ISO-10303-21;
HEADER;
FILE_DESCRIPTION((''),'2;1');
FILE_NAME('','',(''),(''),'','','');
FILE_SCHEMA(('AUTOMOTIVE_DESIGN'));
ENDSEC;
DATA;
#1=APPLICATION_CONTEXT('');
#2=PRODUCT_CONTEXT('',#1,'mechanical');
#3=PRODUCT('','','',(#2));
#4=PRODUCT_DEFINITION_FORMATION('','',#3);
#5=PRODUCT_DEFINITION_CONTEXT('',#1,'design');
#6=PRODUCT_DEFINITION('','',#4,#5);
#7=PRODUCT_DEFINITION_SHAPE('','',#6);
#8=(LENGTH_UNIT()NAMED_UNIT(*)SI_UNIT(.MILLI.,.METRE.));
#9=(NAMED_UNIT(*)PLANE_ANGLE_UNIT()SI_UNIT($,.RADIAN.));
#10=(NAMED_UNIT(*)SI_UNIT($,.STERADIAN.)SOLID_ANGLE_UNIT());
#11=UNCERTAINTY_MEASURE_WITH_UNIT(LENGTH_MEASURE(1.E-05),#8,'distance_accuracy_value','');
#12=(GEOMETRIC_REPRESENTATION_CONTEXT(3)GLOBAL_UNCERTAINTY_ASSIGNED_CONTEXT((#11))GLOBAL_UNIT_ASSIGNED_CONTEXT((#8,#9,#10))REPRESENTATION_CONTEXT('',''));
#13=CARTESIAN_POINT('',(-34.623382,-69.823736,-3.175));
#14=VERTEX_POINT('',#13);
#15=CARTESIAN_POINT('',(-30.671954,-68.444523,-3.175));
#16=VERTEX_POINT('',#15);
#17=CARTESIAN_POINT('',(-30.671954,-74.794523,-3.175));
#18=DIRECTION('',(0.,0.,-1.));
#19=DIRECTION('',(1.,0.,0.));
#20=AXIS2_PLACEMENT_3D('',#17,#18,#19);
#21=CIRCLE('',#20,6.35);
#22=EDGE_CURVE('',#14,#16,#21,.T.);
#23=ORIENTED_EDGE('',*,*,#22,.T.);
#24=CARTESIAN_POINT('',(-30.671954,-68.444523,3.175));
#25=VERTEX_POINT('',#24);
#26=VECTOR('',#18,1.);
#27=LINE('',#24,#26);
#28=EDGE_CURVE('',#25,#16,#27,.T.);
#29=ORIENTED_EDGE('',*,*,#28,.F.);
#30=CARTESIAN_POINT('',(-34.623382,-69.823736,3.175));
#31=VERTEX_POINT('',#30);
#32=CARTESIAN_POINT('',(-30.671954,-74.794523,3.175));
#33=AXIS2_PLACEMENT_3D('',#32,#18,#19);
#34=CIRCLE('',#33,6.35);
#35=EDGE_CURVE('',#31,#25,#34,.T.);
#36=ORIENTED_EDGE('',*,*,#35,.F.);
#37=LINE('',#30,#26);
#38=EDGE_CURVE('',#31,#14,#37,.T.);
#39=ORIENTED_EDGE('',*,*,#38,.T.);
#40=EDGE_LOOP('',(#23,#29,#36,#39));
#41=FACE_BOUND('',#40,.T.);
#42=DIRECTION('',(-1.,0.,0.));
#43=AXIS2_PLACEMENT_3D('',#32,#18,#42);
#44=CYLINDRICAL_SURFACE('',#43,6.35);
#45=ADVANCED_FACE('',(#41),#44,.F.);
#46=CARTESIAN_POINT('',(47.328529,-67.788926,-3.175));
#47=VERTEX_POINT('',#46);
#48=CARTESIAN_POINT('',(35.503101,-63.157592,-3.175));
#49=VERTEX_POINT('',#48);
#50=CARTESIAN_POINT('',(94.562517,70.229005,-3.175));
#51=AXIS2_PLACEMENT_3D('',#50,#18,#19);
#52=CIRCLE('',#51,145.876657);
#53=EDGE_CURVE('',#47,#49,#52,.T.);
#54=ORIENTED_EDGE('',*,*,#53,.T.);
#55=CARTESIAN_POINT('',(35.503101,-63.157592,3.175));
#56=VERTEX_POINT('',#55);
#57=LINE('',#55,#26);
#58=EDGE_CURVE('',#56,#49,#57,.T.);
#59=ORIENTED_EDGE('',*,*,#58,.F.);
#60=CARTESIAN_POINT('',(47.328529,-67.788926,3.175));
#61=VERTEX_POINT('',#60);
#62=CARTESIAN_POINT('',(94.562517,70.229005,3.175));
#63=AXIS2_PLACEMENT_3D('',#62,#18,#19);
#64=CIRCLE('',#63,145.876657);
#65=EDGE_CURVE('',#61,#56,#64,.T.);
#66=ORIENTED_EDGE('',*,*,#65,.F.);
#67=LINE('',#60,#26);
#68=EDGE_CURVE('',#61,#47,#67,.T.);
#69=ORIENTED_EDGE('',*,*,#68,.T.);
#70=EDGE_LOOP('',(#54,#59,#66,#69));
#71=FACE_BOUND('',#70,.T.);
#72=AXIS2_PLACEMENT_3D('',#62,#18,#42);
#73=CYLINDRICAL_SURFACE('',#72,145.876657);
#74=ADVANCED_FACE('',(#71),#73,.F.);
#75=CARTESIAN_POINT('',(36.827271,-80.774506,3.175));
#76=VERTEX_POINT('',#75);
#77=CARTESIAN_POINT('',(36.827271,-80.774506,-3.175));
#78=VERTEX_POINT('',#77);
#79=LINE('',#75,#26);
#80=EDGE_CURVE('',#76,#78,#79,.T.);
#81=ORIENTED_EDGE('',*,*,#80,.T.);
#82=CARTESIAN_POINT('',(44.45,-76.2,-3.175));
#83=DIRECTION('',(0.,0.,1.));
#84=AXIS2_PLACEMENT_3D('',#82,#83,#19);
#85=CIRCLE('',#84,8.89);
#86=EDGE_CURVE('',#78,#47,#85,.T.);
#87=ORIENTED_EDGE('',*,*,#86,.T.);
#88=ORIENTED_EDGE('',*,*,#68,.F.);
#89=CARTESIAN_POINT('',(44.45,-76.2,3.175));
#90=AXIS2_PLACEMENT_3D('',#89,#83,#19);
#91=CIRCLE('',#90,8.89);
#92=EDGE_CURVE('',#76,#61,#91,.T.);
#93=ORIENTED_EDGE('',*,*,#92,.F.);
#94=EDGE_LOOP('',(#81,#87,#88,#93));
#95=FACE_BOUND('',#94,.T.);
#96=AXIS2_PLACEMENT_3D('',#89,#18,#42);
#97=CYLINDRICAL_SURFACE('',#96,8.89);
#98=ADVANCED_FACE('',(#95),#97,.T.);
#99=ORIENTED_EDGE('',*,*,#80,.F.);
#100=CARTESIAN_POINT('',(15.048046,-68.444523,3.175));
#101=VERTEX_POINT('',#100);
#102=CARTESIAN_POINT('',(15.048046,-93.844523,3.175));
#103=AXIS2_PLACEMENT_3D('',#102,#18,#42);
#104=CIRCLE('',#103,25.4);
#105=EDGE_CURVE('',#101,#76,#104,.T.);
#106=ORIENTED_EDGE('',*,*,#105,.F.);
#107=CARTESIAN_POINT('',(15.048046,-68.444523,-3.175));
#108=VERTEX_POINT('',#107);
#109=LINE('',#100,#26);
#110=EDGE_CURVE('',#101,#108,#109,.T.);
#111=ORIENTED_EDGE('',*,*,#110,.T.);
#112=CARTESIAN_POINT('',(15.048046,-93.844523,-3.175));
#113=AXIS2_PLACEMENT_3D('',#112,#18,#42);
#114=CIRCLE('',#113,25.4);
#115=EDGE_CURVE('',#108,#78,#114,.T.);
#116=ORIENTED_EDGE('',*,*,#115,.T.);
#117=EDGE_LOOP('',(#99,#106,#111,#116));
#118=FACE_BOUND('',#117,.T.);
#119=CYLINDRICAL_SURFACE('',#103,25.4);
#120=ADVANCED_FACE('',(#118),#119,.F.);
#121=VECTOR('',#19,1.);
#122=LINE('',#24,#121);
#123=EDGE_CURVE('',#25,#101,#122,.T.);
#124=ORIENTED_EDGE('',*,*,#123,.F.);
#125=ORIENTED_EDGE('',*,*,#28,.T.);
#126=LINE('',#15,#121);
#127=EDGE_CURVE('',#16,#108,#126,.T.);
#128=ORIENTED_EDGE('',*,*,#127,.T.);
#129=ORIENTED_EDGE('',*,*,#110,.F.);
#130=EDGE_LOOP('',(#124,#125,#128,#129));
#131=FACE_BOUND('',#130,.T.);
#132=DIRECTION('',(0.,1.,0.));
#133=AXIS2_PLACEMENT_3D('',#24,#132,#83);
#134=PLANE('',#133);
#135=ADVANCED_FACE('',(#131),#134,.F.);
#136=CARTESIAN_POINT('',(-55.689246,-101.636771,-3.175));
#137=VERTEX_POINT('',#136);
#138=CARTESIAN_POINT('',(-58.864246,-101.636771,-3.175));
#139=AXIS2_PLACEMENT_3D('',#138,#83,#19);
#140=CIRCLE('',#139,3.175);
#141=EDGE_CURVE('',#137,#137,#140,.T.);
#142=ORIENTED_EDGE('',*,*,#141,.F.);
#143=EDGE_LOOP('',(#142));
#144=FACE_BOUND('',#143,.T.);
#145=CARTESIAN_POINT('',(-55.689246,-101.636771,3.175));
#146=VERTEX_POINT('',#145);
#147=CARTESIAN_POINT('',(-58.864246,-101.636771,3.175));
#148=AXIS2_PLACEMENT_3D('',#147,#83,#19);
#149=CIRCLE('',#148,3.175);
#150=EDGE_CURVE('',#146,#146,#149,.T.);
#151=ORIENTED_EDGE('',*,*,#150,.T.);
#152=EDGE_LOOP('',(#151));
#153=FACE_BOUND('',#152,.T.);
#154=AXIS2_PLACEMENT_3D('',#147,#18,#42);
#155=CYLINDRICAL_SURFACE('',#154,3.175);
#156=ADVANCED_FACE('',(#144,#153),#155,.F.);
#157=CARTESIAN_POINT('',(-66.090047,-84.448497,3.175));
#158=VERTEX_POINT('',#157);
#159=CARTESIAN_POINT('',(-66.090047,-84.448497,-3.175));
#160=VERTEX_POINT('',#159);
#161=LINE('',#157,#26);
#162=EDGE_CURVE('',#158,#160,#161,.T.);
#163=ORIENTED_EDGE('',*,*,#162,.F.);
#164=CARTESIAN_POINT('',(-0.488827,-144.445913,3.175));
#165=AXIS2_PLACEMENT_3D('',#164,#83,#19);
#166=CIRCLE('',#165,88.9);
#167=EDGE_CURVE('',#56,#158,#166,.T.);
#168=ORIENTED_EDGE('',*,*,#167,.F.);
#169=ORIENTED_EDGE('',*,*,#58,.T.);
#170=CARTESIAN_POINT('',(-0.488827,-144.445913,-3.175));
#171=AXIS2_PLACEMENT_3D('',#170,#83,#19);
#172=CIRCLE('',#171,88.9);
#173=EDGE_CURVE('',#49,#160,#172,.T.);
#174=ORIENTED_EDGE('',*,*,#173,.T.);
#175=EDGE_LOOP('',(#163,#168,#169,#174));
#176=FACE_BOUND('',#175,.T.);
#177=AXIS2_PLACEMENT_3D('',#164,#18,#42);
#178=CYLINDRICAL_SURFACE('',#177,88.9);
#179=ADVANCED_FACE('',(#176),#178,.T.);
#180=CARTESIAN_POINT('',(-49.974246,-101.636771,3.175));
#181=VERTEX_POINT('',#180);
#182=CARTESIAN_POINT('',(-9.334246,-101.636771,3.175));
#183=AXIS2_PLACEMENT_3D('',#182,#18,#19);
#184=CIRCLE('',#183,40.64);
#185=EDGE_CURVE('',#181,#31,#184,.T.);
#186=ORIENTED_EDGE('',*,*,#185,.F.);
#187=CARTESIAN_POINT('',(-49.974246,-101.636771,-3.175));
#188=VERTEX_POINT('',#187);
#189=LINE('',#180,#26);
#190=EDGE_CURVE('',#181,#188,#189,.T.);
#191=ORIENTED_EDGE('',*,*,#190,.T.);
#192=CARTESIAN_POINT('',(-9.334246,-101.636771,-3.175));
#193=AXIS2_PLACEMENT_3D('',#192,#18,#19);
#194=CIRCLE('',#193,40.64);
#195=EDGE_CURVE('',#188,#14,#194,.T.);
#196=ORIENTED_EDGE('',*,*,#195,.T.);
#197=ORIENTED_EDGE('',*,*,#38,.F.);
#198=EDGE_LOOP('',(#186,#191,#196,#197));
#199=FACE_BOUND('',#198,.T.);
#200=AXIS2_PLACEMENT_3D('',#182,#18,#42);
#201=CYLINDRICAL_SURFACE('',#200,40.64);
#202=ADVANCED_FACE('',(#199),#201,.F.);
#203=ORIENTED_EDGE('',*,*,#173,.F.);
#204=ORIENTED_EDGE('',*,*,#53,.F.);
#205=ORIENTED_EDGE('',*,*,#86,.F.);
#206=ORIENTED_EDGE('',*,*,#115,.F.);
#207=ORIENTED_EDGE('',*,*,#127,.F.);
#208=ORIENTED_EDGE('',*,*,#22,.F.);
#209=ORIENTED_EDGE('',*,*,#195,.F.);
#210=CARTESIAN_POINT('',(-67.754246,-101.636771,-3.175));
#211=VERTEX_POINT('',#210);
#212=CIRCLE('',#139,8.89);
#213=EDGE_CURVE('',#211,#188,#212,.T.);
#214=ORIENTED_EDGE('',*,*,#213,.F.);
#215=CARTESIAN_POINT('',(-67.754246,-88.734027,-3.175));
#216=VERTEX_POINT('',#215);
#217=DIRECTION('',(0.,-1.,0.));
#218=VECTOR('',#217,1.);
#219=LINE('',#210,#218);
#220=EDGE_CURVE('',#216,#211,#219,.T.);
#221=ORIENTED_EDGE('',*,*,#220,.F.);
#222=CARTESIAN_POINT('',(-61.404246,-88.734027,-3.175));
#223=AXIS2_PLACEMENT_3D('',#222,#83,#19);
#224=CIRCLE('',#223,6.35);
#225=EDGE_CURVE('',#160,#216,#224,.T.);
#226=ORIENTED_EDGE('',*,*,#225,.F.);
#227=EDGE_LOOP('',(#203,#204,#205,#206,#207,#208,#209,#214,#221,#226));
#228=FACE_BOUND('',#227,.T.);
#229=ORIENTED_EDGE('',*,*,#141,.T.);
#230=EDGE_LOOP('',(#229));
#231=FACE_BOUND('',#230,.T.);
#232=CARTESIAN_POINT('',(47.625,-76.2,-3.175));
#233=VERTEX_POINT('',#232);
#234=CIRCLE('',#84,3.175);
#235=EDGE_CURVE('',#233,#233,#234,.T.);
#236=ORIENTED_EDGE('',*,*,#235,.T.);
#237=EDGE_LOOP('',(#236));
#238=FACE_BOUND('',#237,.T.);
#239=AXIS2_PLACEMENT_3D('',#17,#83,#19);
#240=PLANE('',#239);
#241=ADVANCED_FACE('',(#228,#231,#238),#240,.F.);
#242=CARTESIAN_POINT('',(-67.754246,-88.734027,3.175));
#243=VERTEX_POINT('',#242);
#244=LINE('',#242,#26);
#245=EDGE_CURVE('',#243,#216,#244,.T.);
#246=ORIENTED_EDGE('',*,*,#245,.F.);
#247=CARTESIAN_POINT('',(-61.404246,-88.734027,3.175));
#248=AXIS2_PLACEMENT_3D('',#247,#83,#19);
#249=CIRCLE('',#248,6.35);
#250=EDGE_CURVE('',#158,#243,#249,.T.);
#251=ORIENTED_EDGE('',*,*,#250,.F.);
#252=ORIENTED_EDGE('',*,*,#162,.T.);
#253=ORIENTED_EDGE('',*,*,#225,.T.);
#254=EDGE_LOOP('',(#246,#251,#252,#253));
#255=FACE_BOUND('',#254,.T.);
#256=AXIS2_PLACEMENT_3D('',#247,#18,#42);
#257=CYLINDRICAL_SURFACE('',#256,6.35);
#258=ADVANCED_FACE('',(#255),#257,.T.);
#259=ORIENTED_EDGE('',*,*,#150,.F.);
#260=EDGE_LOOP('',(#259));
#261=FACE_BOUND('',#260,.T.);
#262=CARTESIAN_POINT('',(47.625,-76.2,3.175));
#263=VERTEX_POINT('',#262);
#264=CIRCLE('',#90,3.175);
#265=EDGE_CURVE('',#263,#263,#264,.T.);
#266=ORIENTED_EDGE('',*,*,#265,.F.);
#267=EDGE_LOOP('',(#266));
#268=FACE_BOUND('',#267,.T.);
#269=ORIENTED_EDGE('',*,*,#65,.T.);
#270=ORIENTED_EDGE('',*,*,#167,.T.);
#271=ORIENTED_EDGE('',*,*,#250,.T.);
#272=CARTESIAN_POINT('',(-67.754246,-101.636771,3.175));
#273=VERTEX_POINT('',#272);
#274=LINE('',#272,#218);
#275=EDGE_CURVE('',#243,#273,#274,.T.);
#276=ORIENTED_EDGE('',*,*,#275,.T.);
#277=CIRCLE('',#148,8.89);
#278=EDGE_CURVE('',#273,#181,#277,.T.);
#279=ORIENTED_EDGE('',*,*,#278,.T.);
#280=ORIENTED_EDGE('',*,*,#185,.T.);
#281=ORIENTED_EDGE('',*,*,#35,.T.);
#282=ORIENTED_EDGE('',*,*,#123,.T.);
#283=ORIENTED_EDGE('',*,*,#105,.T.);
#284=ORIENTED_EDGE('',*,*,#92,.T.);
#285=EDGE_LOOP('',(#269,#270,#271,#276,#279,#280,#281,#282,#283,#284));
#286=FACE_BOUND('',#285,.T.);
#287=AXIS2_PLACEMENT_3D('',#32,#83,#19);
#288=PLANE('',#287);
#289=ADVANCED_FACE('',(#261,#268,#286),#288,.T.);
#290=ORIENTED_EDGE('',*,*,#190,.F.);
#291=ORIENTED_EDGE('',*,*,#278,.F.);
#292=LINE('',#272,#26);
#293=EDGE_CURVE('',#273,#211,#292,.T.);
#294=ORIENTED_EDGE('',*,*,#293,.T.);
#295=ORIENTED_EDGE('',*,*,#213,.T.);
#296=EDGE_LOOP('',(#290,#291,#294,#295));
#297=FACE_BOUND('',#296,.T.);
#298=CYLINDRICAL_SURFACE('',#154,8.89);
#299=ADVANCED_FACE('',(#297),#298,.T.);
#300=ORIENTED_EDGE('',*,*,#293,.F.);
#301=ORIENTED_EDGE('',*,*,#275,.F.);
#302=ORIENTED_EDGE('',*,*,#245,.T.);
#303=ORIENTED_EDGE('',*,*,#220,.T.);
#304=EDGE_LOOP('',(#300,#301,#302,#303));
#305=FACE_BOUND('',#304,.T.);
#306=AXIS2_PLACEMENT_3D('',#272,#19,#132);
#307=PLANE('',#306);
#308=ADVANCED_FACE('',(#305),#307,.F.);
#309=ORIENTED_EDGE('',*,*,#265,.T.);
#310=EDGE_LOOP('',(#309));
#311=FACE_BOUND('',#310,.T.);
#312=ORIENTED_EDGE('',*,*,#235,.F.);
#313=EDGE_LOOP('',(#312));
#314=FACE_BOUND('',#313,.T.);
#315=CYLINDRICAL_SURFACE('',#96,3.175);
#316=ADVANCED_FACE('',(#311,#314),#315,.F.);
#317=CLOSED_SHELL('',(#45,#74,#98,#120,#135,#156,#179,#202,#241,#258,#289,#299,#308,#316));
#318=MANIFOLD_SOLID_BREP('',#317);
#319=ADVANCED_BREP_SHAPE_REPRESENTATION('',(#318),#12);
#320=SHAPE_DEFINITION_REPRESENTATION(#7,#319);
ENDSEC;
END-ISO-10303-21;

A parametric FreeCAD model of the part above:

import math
import FreeCAD as App
import Part
import Sketcher
from FreeCAD import Vector
Q = App.Units.Quantity

doc = App.newDocument("Part")
body = doc.addObject("PartDesign::Body", "Body")

sketch1 = body.newObject("Sketcher::SketchObject", "Sketch")
sketch1.AttachmentSupport = (doc.getObject("XY_Plane"), [""])
sketch1.MapMode = "FlatFace"
sketch1.addGeometry([
    Part.LineSegment(Vector(-30.671954, -68.444523, 0), Vector(15.048046, -68.444523, 0)),
    Part.ArcOfCircle(Part.Circle(Vector(15.048046, -93.844523, 0), Vector(0, 0, 1), 25.4), math.radians(30.968557), math.radians(90)),
    Part.ArcOfCircle(Part.Circle(Vector(44.45, -76.2, 0), Vector(0, 0, 1), 8.89), math.radians(-149.031443), math.radians(71.107473)),
    Part.ArcOfCircle(Part.Circle(Vector(94.562517, 70.229006, 0), Vector(0, 0, 1), 145.876657), math.radians(-113.882265), math.radians(-108.892527)),
    Part.ArcOfCircle(Part.Circle(Vector(-0.488827, -144.445913, 0), Vector(0, 0, 1), 88.9), math.radians(66.117735), math.radians(137.554658)),
    Part.ArcOfCircle(Part.Circle(Vector(-61.404246, -88.734027, 0), Vector(0, 0, 1), 6.35), math.radians(137.554658), math.radians(180)),
    Part.LineSegment(Vector(-67.754246, -88.734027, 0), Vector(-67.754246, -101.636771, 0)),
    Part.ArcOfCircle(Part.Circle(Vector(-58.864246, -101.636771, 0), Vector(0, 0, 1), 8.89), math.radians(180), math.radians(360)),
    Part.ArcOfCircle(Part.Circle(Vector(-9.334246, -101.636771, 0), Vector(0, 0, 1), 40.64), math.radians(128.482241), math.radians(180)),
    Part.ArcOfCircle(Part.Circle(Vector(-30.671954, -74.794523, 0), Vector(0, 0, 1), 6.35), math.radians(90), math.radians(128.482241)),
    Part.Circle(Vector(-58.864246, -101.636771, 0), Vector(0, 0, 1), 3.175),
    Part.Circle(Vector(44.45, -76.2, 0), Vector(0, 0, 1), 3.175),
], False)
sketch1.addConstraint([
    Sketcher.Constraint("Tangent", 0, 2, 1, 2),
    Sketcher.Constraint("Tangent", 1, 1, 2, 1),
    Sketcher.Constraint("Tangent", 2, 2, 3, 2),
    Sketcher.Constraint("Tangent", 3, 1, 4, 1),
    Sketcher.Constraint("Tangent", 4, 2, 5, 1),
    Sketcher.Constraint("Tangent", 5, 2, 6, 1),
    Sketcher.Constraint("Tangent", 6, 2, 7, 1),
    Sketcher.Constraint("Tangent", 7, 2, 8, 2),
    Sketcher.Constraint("Tangent", 8, 1, 9, 2),
    Sketcher.Constraint("Tangent", 9, 1, 0, 1),
    Sketcher.Constraint("Horizontal", 0),
    Sketcher.Constraint("Vertical", 6),
    Sketcher.Constraint("Coincident", 10, 3, 7, 3),
    Sketcher.Constraint("Coincident", 11, 3, 2, 3),
    Sketcher.Constraint("Equal", 2, 7),
    Sketcher.Constraint("Equal", 5, 9),
    Sketcher.Constraint("Equal", 10, 11),
    Sketcher.Constraint("Horizontal", 7, 3, 8, 3),
    Sketcher.Constraint("Radius", 1, Q("1 in")),
    Sketcher.Constraint("Radius", 4, Q("3.5 in")),
    Sketcher.Constraint("Radius", 8, Q("1.6 in")),
    Sketcher.Constraint("Diameter", 10, Q("0.25 in")),
    Sketcher.Constraint("Radius", 2, Q("0.35 in")),
    Sketcher.Constraint("Radius", 5, Q("0.25 in")),
    Sketcher.Constraint("DistanceX", 0, 1, 0, 2, Q("1.8 in")),
    Sketcher.Constraint("DistanceY", 2, 3, -1, 1, Q("3 in")),
    Sketcher.Constraint("DistanceX", -1, 1, 2, 3, Q("1.75 in")),
    Sketcher.Constraint("Radius", 3, Q("145.876657 mm")),
    Sketcher.Constraint("DistanceX", -1, 1, 3, 1, Q("35.503101 mm")),
    Sketcher.Constraint("DistanceY", 6, 2, 6, 1, Q("12.902745 mm")),
    Sketcher.Constraint("DistanceY", 7, 3, -1, 1, Q("101.636771 mm")),
    Sketcher.Constraint("DistanceX", -1, 1, 1, 1, Q("36.827271 mm")),
])
pad1 = body.newObject("PartDesign::Pad", "Pad")
pad1.Profile = sketch1
pad1.Length = Q("0.25 in")
pad1.Midplane = True

doc.recompute()
